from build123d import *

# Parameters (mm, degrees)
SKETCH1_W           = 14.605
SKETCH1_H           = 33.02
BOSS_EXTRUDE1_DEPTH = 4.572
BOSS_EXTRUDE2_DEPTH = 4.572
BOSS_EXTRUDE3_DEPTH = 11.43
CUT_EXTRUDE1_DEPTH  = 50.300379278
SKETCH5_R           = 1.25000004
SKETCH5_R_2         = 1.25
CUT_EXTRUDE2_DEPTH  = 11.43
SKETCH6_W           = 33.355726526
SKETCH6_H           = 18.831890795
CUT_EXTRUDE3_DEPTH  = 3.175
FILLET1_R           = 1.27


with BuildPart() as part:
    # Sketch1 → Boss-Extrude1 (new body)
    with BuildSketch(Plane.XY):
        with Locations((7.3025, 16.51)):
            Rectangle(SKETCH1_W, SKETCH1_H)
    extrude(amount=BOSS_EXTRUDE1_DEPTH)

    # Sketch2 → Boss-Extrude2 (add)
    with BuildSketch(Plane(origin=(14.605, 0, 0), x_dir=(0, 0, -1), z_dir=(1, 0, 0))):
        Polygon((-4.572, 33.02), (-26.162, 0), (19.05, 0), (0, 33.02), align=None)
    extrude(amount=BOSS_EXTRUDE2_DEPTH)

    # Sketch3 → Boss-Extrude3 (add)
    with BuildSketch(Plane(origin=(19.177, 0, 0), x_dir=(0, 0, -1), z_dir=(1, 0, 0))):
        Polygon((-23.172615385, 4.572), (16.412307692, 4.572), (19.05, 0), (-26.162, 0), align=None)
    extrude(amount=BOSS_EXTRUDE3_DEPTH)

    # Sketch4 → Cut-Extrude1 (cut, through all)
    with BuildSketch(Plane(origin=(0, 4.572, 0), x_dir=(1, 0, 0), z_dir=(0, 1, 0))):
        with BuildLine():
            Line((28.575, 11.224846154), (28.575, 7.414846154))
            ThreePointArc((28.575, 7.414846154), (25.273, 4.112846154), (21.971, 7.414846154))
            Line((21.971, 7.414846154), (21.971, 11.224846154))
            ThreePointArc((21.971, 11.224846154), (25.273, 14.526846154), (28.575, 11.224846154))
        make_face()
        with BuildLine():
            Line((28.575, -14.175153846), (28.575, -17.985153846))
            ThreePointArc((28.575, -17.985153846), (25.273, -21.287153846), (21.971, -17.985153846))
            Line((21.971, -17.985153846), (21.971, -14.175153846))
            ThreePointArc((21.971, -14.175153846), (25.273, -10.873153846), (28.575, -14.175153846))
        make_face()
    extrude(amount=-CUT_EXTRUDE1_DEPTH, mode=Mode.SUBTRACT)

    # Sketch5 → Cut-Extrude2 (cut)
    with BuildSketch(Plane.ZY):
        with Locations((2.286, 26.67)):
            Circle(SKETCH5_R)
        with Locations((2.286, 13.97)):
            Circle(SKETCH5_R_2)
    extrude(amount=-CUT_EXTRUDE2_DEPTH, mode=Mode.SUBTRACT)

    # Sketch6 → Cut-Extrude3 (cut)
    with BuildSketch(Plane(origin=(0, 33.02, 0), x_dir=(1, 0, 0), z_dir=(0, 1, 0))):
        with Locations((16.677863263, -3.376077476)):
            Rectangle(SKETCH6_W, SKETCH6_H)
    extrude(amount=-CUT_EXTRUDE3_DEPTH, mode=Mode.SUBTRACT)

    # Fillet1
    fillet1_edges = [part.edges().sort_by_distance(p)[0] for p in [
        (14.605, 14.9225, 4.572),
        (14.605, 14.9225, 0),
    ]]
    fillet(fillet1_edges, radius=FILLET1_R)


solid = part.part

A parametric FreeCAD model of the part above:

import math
import FreeCAD as App
import Part
import Sketcher

V = App.Vector
Q = App.Units.Quantity


def edges_at(feature, points):
    """Names of the edges that pass closest to the given points."""
    edges = feature.Shape.Edges
    near = lambda p: min(range(len(edges)), key=lambda i: edges[i].distToShape(Part.Vertex(*p))[0])
    return sorted({f"Edge{near(p) + 1}" for p in points})


def add_polygon(sketch, points):
    """Adds a closed chain of lines whose ends are joined by coincident constraints."""
    first, n = sketch.GeometryCount, len(points)
    for a, b in zip(points, points[1:] + points[:1]):
        sketch.addGeometry(Part.LineSegment(App.Vector(*a, 0), App.Vector(*b, 0)), False)
    for i in range(n):
        sketch.addConstraint(Sketcher.Constraint("Coincident", first + i, 2, first + (i + 1) % n, 1))

doc = App.newDocument("Part")
params = doc.addObject("Spreadsheet::Sheet", "Params")
for row, (alias, value) in enumerate([
    ("sketch1_height", "1.3 in"),
    ("sketch1_width", "0.575 in"),
    ("pad1_length", "0.18 in"),
    ("sketch2_height", "1.78 in"),
    ("sketch2_height2", "0.18 in"),
    ("pad2_length", "0.18 in"),
    ("sketch3_height", "1.78 in"),
    ("pad3_length", "0.45 in"),
    ("sketch4_radius", "0.13 in"),
    ("sketch4_height", "0.15 in"),
    ("pocket2_length", "0.45 in"),
    ("pocket3_length", "0.125 in"),
    ("fillet_radius", "0.05 in"),
], start=1):
    params.set(f"A{row}", alias)
    params.set(f"B{row}", "=" + value)
    params.setAlias(f"B{row}", alias)

body = doc.addObject("PartDesign::Body", "Body")

sketch1 = body.newObject("Sketcher::SketchObject", "Sketch")
sketch1.AttachmentSupport = (doc.getObject("XY_Plane"), [""])
sketch1.MapMode = "FlatFace"
add_polygon(sketch1, [(0, 33.02), (0, 0), (14.605, 0), (14.605, 33.02)])
sketch1.addConstraint([
    Sketcher.Constraint("Vertical", 0),
    Sketcher.Constraint("Horizontal", 1),
    Sketcher.Constraint("Vertical", 2),
    Sketcher.Constraint("Horizontal", 3),
    Sketcher.Constraint("Coincident", 0, 2, -1, 1),
    Sketcher.Constraint("DistanceY", 0, 2, 0, 1, Q("1.3 in")),
    Sketcher.Constraint("DistanceX", 1, 1, 1, 2, Q("0.575 in")),
])
sketch1.setExpression("Constraints[9]", "Params.sketch1_height")
sketch1.setExpression("Constraints[10]", "Params.sketch1_width")
pad1 = body.newObject("PartDesign::Pad", "Pad")
pad1.Profile = sketch1
pad1.setExpression("Length", "Params.pad1_length")

sketch2 = body.newObject("Sketcher::SketchObject", "Sketch001")
sketch2.AttachmentSupport = (doc.getObject("YZ_Plane"), [""])
sketch2.MapMode = "FlatFace"
sketch2.AttachmentOffset = App.Placement(V(0, 0, 0.575 * 25.4), App.Rotation())
add_polygon(sketch2, [(33.02, 4.572), (0, 26.162), (0, -19.05), (33.02, 0)])
sketch2.addConstraint([
    Sketcher.Constraint("Vertical", 1),
    Sketcher.Constraint("Vertical", 3),
    Sketcher.Constraint("PointOnObject", 0, 2, -2),
    Sketcher.Constraint("PointOnObject", 2, 2, -1),
    Sketcher.Constraint("DistanceY", 1, 2, 1, 1, Q("1.78 in")),
    Sketcher.Constraint("DistanceY", 3, 1, 3, 2, Q("0.18 in")),
    Sketcher.Constraint("DistanceX", -1, 1, 2, 2, Q("1.3 in")),
    Sketcher.Constraint("DistanceY", -1, 1, 0, 2, Q("1.03 in")),
])
sketch2.setExpression("Constraints[8]", "Params.sketch2_height")
sketch2.setExpression("Constraints[9]", "Params.sketch2_height2")
pad2 = body.newObject("PartDesign::Pad", "Pad001")
pad2.Profile = sketch2
pad2.setExpression("Length", "Params.pad2_length")

sketch3 = body.newObject("Sketcher::SketchObject", "Sketch002")
sketch3.AttachmentSupport = (doc.getObject("YZ_Plane"), [""])
sketch3.MapMode = "FlatFace"
sketch3.AttachmentOffset = App.Placement(V(0, 0, 0.755 * 25.4), App.Rotation())
add_polygon(sketch3, [(4.572, -16.412308), (4.572, 23.172615), (0, 26.162), (0, -19.05)])
sketch3.addConstraint([
    Sketcher.Constraint("Vertical", 0),
    Sketcher.Constraint("Vertical", 2),
    Sketcher.Constraint("PointOnObject", 1, 2, -2),
    Sketcher.Constraint("DistanceY", 2, 2, 2, 1, Q("1.78 in")),
    Sketcher.Constraint("DistanceX", -1, 1, 0, 2, Q("0.18 in")),
    Sketcher.Constraint("DistanceY", -1, 1, 1, 2, Q("1.03 in")),
    Sketcher.Constraint("DistanceY", 0, 1, 0, 2, Q("39.584923 mm")),
    Sketcher.Constraint("Distance", 1, Q("5.462564 mm")),
])
sketch3.setExpression("Constraints[7]", "Params.sketch3_height")
pad3 = body.newObject("PartDesign::Pad", "Pad002")
pad3.Profile = sketch3
pad3.setExpression("Length", "Params.pad3_length")

sketch4 = body.newObject("Sketcher::SketchObject", "Sketch003")
sketch4.AttachmentSupport = (doc.getObject("XZ_Plane"), [""])
sketch4.MapMode = "FlatFace"
sketch4.AttachmentOffset = App.Placement(V(0, 0, -0.18 * 25.4), App.Rotation())
sketch4.addGeometry([
    Part.LineSegment(V(28.575, -7.414846, 0), V(28.575, -11.224846, 0)),
    Part.ArcOfCircle(Part.Circle(V(25.273, -11.224846, 0), V(0, 0, 1), 3.302), math.radians(180), math.radians(360)),
    Part.LineSegment(V(21.971, -11.224846, 0), V(21.971, -7.414846, 0)),
    Part.ArcOfCircle(Part.Circle(V(25.273, -7.414846, 0), V(0, 0, 1), 3.302), math.radians(0), math.radians(180)),
    Part.LineSegment(V(28.575, 17.985154, 0), V(28.575, 14.175154, 0)),
    Part.ArcOfCircle(Part.Circle(V(25.273, 14.175154, 0), V(0, 0, 1), 3.302), math.radians(180), math.radians(360)),
    Part.LineSegment(V(21.971, 14.175154, 0), V(21.971, 17.985154, 0)),
    Part.ArcOfCircle(Part.Circle(V(25.273, 17.985154, 0), V(0, 0, 1), 3.302), math.radians(0), math.radians(180)),
], False)
sketch4.addConstraint([
    Sketcher.Constraint("Tangent", 0, 2, 1, 2),
    Sketcher.Constraint("Tangent", 1, 1, 2, 1),
    Sketcher.Constraint("Tangent", 2, 2, 3, 2),
    Sketcher.Constraint("Tangent", 3, 1, 0, 1),
    Sketcher.Constraint("Tangent", 4, 2, 5, 2),
    Sketcher.Constraint("Tangent", 5, 1, 6, 1),
    Sketcher.Constraint("Tangent", 6, 2, 7, 2),
    Sketcher.Constraint("Tangent", 7, 1, 4, 1),
    Sketcher.Constraint("Vertical", 0),
    Sketcher.Constraint("Vertical", 2),
    Sketcher.Constraint("Vertical", 4),
    Sketcher.Constraint("Vertical", 6),
    Sketcher.Constraint("Equal", 3, 5),
    Sketcher.Constraint("Vertical", 3, 3, 5, 3),
    Sketcher.Constraint("Equal", 2, 4),
    Sketcher.Constraint("Radius", 1, Q("0.13 in")),
    Sketcher.Constraint("DistanceY", 1, 3, 5, 3, Q("1 in")),
    Sketcher.Constraint("DistanceY", 0, 2, 0, 1, Q("0.15 in")),
    Sketcher.Constraint("DistanceX", -1, 1, 1, 3, Q("0.995 in")),
    Sketcher.Constraint("DistanceY", 1, 3, -1, 1, Q("11.224846 mm")),
])
sketch4.setExpression("Constraints[15]", "Params.sketch4_radius")
sketch4.setExpression("Constraints[17]", "Params.sketch4_height")
pocket1 = body.newObject("PartDesign::Pocket", "Pocket")
pocket1.Profile = sketch4
pocket1.Type = "ThroughAll"
pocket1.Reversed = True

sketch5 = body.newObject("Sketcher::SketchObject", "Sketch004")
sketch5.AttachmentSupport = (doc.getObject("YZ_Plane"), [""])
sketch5.MapMode = "FlatFace"
sketch5.addGeometry([
    Part.Circle(V(26.67, 2.286, 0), V(0, 0, 1), 1.25),
    Part.Circle(V(13.97, 2.286, 0), V(0, 0, 1), 1.25),
], False)
sketch5.addConstraint([
    Sketcher.Constraint("Equal", 0, 1),
    Sketcher.Constraint("Horizontal", 0, 3, 1, 3),
    Sketcher.Constraint("DistanceX", 1, 3, 0, 3, Q("0.5 in")),
    Sketcher.Constraint("Diameter", 0, Q("2.5 mm")),
    Sketcher.Constraint("DistanceX", -1, 1, 0, 3, Q("1.05 in")),
    Sketcher.Constraint("DistanceY", -1, 1, 0, 3, Q("0.09 in")),
])
pocket2 = body.newObject("PartDesign::Pocket", "Pocket001")
pocket2.Profile = sketch5
pocket2.setExpression("Length", "Params.pocket2_length")
pocket2.Reversed = True

sketch6 = body.newObject("Sketcher::SketchObject", "Sketch005")
sketch6.AttachmentSupport = (doc.getObject("XZ_Plane"), [""])
sketch6.MapMode = "FlatFace"
sketch6.AttachmentOffset = App.Placement(V(0, 0, -1.3 * 25.4), App.Rotation())
add_polygon(sketch6, [(0, -6.039868), (0, 12.792023), (33.355727, 12.792023), (33.355727, -6.039868)])
sketch6.addConstraint([
    Sketcher.Constraint("Vertical", 0),
    Sketcher.Constraint("Horizontal", 1),
    Sketcher.Constraint("Vertical", 2),
    Sketcher.Constraint("Horizontal", 3),
    Sketcher.Constraint("PointOnObject", 0, 2, -2),
    Sketcher.Constraint("DistanceY", 0, 1, 0, 2, Q("18.831891 mm")),
    Sketcher.Constraint("DistanceX", 1, 1, 1, 2, Q("33.355727 mm")),
    Sketcher.Constraint("DistanceY", -1, 1, 0, 2, Q("12.792023 mm")),
])
pocket3 = body.newObject("PartDesign::Pocket", "Pocket002")
pocket3.Profile = sketch6
pocket3.setExpression("Length", "Params.pocket3_length")
pocket3.Reversed = True
doc.recompute()

fillet = body.newObject("PartDesign::Fillet", "Fillet")
fillet.Base = (pocket3, edges_at(pocket3, [(14.605, 14.922, 4.572), (14.605, 14.922, 0)]))
fillet.setExpression("Radius", "Params.fillet_radius")

doc.recompute()
